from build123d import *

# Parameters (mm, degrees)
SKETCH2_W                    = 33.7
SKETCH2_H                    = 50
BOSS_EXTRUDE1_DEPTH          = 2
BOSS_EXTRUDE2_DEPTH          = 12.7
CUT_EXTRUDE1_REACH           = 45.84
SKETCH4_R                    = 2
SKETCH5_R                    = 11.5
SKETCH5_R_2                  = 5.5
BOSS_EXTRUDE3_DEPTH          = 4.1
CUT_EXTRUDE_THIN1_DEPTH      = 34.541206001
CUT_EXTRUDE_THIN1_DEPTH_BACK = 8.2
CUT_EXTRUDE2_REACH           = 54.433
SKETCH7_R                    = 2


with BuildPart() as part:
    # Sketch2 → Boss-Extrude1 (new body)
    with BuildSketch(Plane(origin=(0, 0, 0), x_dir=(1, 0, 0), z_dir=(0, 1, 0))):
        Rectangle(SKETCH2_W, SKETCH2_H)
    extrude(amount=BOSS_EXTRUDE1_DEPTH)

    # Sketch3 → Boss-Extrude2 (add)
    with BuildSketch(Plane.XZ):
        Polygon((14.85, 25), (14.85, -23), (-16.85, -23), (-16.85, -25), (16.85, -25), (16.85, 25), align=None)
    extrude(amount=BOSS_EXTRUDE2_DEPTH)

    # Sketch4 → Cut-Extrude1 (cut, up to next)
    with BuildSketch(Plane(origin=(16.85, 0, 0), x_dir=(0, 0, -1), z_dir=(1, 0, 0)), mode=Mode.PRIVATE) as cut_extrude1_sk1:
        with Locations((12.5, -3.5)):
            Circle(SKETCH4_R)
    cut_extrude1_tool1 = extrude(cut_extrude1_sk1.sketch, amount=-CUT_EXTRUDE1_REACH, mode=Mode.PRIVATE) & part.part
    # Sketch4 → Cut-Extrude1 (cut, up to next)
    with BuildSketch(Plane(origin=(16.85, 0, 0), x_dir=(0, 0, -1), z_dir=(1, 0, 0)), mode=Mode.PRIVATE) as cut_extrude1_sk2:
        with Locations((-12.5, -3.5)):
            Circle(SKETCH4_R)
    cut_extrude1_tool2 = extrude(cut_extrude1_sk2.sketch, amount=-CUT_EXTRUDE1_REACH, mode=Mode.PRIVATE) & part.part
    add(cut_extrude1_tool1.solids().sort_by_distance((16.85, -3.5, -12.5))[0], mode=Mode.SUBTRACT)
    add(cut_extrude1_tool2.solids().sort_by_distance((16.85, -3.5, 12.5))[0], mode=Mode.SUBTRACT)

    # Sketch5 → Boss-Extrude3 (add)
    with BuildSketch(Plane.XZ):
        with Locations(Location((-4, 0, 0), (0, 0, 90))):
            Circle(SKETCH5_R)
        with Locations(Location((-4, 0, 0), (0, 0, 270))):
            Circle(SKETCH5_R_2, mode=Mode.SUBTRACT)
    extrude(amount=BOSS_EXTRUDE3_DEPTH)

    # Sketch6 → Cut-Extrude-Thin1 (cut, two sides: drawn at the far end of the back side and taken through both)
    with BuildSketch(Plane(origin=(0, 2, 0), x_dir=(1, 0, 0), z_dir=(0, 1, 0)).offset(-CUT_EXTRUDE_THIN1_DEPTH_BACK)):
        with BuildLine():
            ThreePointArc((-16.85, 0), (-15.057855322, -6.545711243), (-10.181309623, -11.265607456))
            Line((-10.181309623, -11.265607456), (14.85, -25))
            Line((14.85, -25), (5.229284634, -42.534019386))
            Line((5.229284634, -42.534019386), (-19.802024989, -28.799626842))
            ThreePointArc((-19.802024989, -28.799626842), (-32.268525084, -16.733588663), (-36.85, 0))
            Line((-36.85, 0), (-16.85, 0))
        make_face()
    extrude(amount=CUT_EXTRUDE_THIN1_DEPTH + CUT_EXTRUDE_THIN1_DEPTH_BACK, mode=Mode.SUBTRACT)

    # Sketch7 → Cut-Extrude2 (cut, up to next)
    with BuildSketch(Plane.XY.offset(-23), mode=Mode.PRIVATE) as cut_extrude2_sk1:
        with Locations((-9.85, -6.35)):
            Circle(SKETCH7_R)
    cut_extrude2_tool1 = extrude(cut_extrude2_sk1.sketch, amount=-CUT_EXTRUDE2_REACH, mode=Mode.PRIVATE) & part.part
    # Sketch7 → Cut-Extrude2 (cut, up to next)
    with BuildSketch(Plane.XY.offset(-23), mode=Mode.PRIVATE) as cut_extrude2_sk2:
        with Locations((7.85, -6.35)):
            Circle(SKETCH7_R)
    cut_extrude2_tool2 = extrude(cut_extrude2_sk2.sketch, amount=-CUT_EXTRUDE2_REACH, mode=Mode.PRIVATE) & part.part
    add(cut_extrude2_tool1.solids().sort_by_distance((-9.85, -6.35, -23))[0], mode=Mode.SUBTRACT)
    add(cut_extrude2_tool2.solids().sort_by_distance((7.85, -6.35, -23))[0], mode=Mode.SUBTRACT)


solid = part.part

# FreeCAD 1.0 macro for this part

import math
import FreeCAD as App
import Part
import Sketcher
from FreeCAD import Vector

doc = App.newDocument("Part")
body = doc.addObject("PartDesign::Body", "Body")

# Sketch on XZ plane
sketch1 = body.newObject("Sketcher::SketchObject", "Sketch")
sketch1.AttachmentSupport = (doc.getObject("XZ_Plane"), [""])
sketch1.MapMode = "FlatFace"
sketch1.addGeometry([
    Part.LineSegment(Vector(-17, -25, 0), Vector(-17, 25, 0)),
    Part.LineSegment(Vector(-17, 25, 0), Vector(17, 25, 0)),
    Part.LineSegment(Vector(17, 25, 0), Vector(17, -25, 0)),
    Part.LineSegment(Vector(17, -25, 0), Vector(-17, -25, 0)),
], False)
sketch1.addConstraint([
    Sketcher.Constraint("Coincident", 0, 2, 1, 1),
    Sketcher.Constraint("Coincident", 1, 2, 2, 1),
    Sketcher.Constraint("Coincident", 2, 2, 3, 1),
    Sketcher.Constraint("Coincident", 3, 2, 0, 1),
    Sketcher.Constraint("Vertical", 0),
    Sketcher.Constraint("Horizontal", 1),
    Sketcher.Constraint("Vertical", 2),
    Sketcher.Constraint("Horizontal", 3),
    Sketcher.Constraint("Symmetric", 0, 2, 2, 2, -1, 1),
    Sketcher.Constraint("DistanceY", 0, 1, 0, 2, 50.0),
    Sketcher.Constraint("DistanceX", 1, 1, 1, 2, 33.7),
])
pad1 = body.newObject("PartDesign::Pad", "Pad")
pad1.Profile = sketch1
pad1.Length = 2
pad1.Reversed = True

# Sketch on XZ plane
sketch2 = body.newObject("Sketcher::SketchObject", "Sketch001")
sketch2.AttachmentSupport = (doc.getObject("XZ_Plane"), [""])
sketch2.MapMode = "FlatFace"
sketch2.addGeometry([
    Part.LineSegment(Vector(14.8, 25, 0), Vector(14.8, -23, 0)),  # 0
    Part.LineSegment(Vector(14.8, -23, 0), Vector(-16.9, -23, 0)),  # 1
    Part.LineSegment(Vector(-16.9, -23, 0), Vector(-16.9, -25, 0)),  # 2
    Part.LineSegment(Vector(-16.9, -25, 0), Vector(16.9, -25, 0)),  # 3
    Part.LineSegment(Vector(16.9, -25, 0), Vector(16.9, 25, 0)),  # 4
    Part.LineSegment(Vector(16.9, 25, 0), Vector(14.8, 25, 0)),  # 5
], False)
sketch2.addConstraint([
    Sketcher.Constraint("Coincident", 0, 2, 1, 1),
    Sketcher.Constraint("Coincident", 1, 2, 2, 1),
    Sketcher.Constraint("Coincident", 2, 2, 3, 1),
    Sketcher.Constraint("Coincident", 3, 2, 4, 1),
    Sketcher.Constraint("Coincident", 4, 2, 5, 1),
    Sketcher.Constraint("Coincident", 5, 2, 0, 1),
    Sketcher.Constraint("Vertical", 0),
    Sketcher.Constraint("Horizontal", 1),
    Sketcher.Constraint("Vertical", 2),
    Sketcher.Constraint("Horizontal", 3),
    Sketcher.Constraint("Vertical", 4),
    Sketcher.Constraint("Horizontal", 5),
    Sketcher.Constraint("Symmetric", 2, 2, 4, 2, -1, 1),
    Sketcher.Constraint("Equal", 5, 2),
    Sketcher.Constraint("DistanceX", 5, 2, 5, 1, 2.0),
    Sketcher.Constraint("DistanceY", 0, 2, 0, 1, 48.0),
    Sketcher.Constraint("DistanceX", 1, 2, 1, 1, 31.7),
])
pad2 = body.newObject("PartDesign::Pad", "Pad001")
pad2.Profile = sketch2
pad2.Length = 12.7

# Sketch on YZ plane
sketch3 = body.newObject("Sketcher::SketchObject", "Sketch002")
sketch3.AttachmentSupport = (doc.getObject("YZ_Plane"), [""])
sketch3.MapMode = "FlatFace"
sketch3.AttachmentOffset = App.Placement(Vector(0, 0, 16.85), App.Rotation())
sketch3.addGeometry(Part.Circle(Vector(-3.5, -12.5, 0), Vector(0, 0, 1), 2), False)
sketch3.addConstraint([
    Sketcher.Constraint("Diameter", 0, 4.0),
    Sketcher.Constraint("DistanceX", 0, 3, -1, 1, 3.5),
    Sketcher.Constraint("DistanceY", 0, 3, -1, 1, 12.5),
])
pocket1 = body.newObject("PartDesign::Pocket", "Pocket")
pocket1.Profile = sketch3
pocket1.Type = "UpToFirst"

# Sketch on YZ plane
sketch4 = body.newObject("Sketcher::SketchObject", "Sketch003")
sketch4.AttachmentSupport = (doc.getObject("YZ_Plane"), [""])
sketch4.MapMode = "FlatFace"
sketch4.AttachmentOffset = App.Placement(Vector(0, 0, 16.85), App.Rotation())
sketch4.addGeometry(Part.Circle(Vector(-3.5, 12.5, 0), Vector(0, 0, 1), 2), False)
sketch4.addConstraint([
    Sketcher.Constraint("Diameter", 0, 4.0),
    Sketcher.Constraint("DistanceX", 0, 3, -1, 1, 3.5),
    Sketcher.Constraint("DistanceY", -1, 1, 0, 3, 12.5),
])
pocket2 = body.newObject("PartDesign::Pocket", "Pocket001")
pocket2.Profile = sketch4
pocket2.Type = "UpToFirst"

# Sketch on XZ plane
sketch5 = body.newObject("Sketcher::SketchObject", "Sketch004")
sketch5.AttachmentSupport = (doc.getObject("XZ_Plane"), [""])
sketch5.MapMode = "FlatFace"
sketch5.addGeometry([
    Part.Circle(Vector(-4, 0, 0), Vector(0, 0, 1), 12),
    Part.Circle(Vector(-4, 0, 0), Vector(0, 0, 1), 6),
], False)
sketch5.addConstraint([
    Sketcher.Constraint("Coincident", 1, 3, 0, 3),
    Sketcher.Constraint("PointOnObject", 0, 3, -1),
    Sketcher.Constraint("Diameter", 0, 23.0),
    Sketcher.Constraint("Diameter", 1, 11.0),
    Sketcher.Constraint("DistanceX", 0, 3, -1, 1, 4.0),
])
pad3 = body.newObject("PartDesign::Pad", "Pad002")
pad3.Profile = sketch5
pad3.Length = 4.1

# Sketch on XZ plane
sketch6 = body.newObject("Sketcher::SketchObject", "Sketch005")
sketch6.AttachmentSupport = (doc.getObject("XZ_Plane"), [""])
sketch6.MapMode = "FlatFace"
sketch6.AttachmentOffset = App.Placement(Vector(0, 0, -2), App.Rotation())
sketch6.addGeometry([
    Part.ArcOfCircle(Part.Circle(Vector(-4, 0, 0), Vector(0, 0, 1), 13), math.radians(119), math.radians(180)),  # 0
    Part.LineSegment(Vector(-17, 0, 0), Vector(-37, 0, 0)),  # 1
    Part.ArcOfCircle(Part.Circle(Vector(-4, 0, 0), Vector(0, 0, 1), 33), math.radians(119), math.radians(180)),  # 2
    Part.LineSegment(Vector(-20, 29, 0), Vector(5, 43, 0)),  # 3
    Part.LineSegment(Vector(5, 43, 0), Vector(15, 25, 0)),  # 4
    Part.LineSegment(Vector(15, 25, 0), Vector(-10, 11, 0)),  # 5
], False)
sketch6.addConstraint([
    Sketcher.Constraint("Coincident", 0, 2, 1, 1),
    Sketcher.Constraint("Coincident", 1, 2, 2, 2),
    Sketcher.Constraint("Tangent", 2, 1, 3, 1),
    Sketcher.Constraint("Coincident", 3, 2, 4, 1),
    Sketcher.Constraint("Coincident", 4, 2, 5, 1),
    Sketcher.Constraint("Tangent", 5, 2, 0, 1),
    Sketcher.Constraint("Horizontal", 1),
    Sketcher.Constraint("Coincident", 2, 3, 0, 3),
    Sketcher.Constraint("PointOnObject", 0, 3, -1),
    Sketcher.Constraint("PointOnObject", 0, 2, -1),
    Sketcher.Constraint("Perpendicular", 3, 4),
    Sketcher.Constraint("Perpendicular", 4, 5),
    Sketcher.Constraint("DistanceX", 1, 2, 1, 1, 20.0),
    Sketcher.Constraint("Radius", 0, 12.85),
    Sketcher.Constraint("DistanceX", 0, 3, -1, 1, 4.0),
    Sketcher.Constraint("DistanceY", -1, 1, 4, 2, 25.0),
    Sketcher.Constraint("DistanceX", 0, 2, 4, 2, 31.7),
])
pocket3 = body.newObject("PartDesign::Pocket", "Pocket002")
pocket3.Profile = sketch6
pocket3.Type = "ThroughAll"
pocket3.Midplane = True

# Sketch on XY plane
sketch7 = body.newObject("Sketcher::SketchObject", "Sketch006")
sketch7.AttachmentSupport = (doc.getObject("XY_Plane"), [""])
sketch7.MapMode = "FlatFace"
sketch7.AttachmentOffset = App.Placement(Vector(0, 0, -23), App.Rotation())
sketch7.addGeometry(Part.Circle(Vector(-9.8, -6.3, 0), Vector(0, 0, 1), 2), False)
sketch7.addConstraint([
    Sketcher.Constraint("Diameter", 0, 4.0),
    Sketcher.Constraint("DistanceX", 0, 3, -1, 1, 9.85),
    Sketcher.Constraint("DistanceY", 0, 3, -1, 1, 6.35),
])
pocket4 = body.newObject("PartDesign::Pocket", "Pocket003")
pocket4.Profile = sketch7
pocket4.Type = "UpToFirst"

# Sketch on XY plane
sketch8 = body.newObject("Sketcher::SketchObject", "Sketch007")
sketch8.AttachmentSupport = (doc.getObject("XY_Plane"), [""])
sketch8.MapMode = "FlatFace"
sketch8.AttachmentOffset = App.Placement(Vector(0, 0, -23), App.Rotation())
sketch8.addGeometry(Part.Circle(Vector(7.8, -6.3, 0), Vector(0, 0, 1), 2), False)
sketch8.addConstraint([
    Sketcher.Constraint("Diameter", 0, 4.0),
    Sketcher.Constraint("DistanceX", -1, 1, 0, 3, 7.85),
    Sketcher.Constraint("DistanceY", 0, 3, -1, 1, 6.35),
])
pocket5 = body.newObject("PartDesign::Pocket", "Pocket004")
pocket5.Profile = sketch8
pocket5.Type = "UpToFirst"

doc.recompute()
